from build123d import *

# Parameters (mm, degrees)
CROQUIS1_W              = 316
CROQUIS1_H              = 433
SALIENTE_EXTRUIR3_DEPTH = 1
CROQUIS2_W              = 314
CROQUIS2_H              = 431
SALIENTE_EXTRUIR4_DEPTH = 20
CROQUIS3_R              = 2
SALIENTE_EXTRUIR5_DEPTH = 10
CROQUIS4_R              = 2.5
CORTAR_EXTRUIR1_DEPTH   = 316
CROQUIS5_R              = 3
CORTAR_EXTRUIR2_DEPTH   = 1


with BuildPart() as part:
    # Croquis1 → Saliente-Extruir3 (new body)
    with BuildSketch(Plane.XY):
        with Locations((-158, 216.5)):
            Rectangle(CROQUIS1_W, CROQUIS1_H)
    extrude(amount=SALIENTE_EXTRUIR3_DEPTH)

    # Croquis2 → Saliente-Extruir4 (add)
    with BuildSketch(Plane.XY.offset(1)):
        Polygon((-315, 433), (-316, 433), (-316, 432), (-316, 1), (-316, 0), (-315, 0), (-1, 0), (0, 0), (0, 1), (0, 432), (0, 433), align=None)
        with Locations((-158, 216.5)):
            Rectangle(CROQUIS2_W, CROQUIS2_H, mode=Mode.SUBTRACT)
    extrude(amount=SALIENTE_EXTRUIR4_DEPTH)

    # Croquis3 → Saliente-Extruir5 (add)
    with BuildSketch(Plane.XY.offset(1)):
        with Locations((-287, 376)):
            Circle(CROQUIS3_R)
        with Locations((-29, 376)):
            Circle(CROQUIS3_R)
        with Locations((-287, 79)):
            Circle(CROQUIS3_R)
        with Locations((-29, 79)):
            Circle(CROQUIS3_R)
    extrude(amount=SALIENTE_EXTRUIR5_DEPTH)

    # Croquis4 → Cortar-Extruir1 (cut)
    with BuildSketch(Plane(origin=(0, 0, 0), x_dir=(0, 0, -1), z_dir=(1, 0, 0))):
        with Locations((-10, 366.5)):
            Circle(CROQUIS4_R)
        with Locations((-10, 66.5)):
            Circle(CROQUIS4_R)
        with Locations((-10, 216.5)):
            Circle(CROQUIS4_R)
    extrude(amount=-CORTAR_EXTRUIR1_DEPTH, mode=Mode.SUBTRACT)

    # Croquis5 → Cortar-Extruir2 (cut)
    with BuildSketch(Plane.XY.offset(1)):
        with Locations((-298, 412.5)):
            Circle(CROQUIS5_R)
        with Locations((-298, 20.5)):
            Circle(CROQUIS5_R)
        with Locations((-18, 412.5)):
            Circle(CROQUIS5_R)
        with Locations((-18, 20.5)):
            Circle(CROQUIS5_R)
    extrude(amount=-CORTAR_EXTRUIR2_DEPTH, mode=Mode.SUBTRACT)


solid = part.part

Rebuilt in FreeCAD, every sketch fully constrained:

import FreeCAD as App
import Part
import Sketcher

V = App.Vector
Q = App.Units.Quantity

doc = App.newDocument("Part")
body = doc.addObject("PartDesign::Body", "Body")

sketch1 = doc.addObject("Sketcher::SketchObject", "Sketch")
body.addObject(sketch1)
sketch1.AttachmentSupport = (doc.XY_Plane, [""])
sketch1.MapMode = "FlatFace"
sketch1.addGeometry([
    Part.LineSegment(V(-316, 433, 0), V(-316, 0, 0)),
    Part.LineSegment(V(-316, 0, 0), V(0, 0, 0)),
    Part.LineSegment(V(0, 0, 0), V(0, 433, 0)),
    Part.LineSegment(V(0, 433, 0), V(-316, 433, 0)),
], False)
sketch1.addConstraint([
    Sketcher.Constraint("Coincident", 0, 2, 1, 1),
    Sketcher.Constraint("Coincident", 1, 2, 2, 1),
    Sketcher.Constraint("Coincident", 2, 2, 3, 1),
    Sketcher.Constraint("Coincident", 3, 2, 0, 1),
    Sketcher.Constraint("Vertical", 0),
    Sketcher.Constraint("Horizontal", 1),
    Sketcher.Constraint("Vertical", 2),
    Sketcher.Constraint("Horizontal", 3),
    Sketcher.Constraint("Coincident", 1, 2, -1, 1),
    Sketcher.Constraint("DistanceX", 1, 1, 1, 2, Q("316 mm")),
    Sketcher.Constraint("DistanceY", 0, 2, 0, 1, Q("433 mm")),
])
pad1 = doc.addObject("PartDesign::Pad", "Pad")
body.addObject(pad1)
pad1.Profile = sketch1
pad1.Length = 1

sketch2 = doc.addObject("Sketcher::SketchObject", "Sketch001")
body.addObject(sketch2)
sketch2.AttachmentSupport = (doc.XY_Plane, [""])
sketch2.MapMode = "FlatFace"
sketch2.AttachmentOffset = App.Placement(V(0, 0, 1), App.Rotation())
sketch2.addGeometry([
    Part.LineSegment(V(-316, 433, 0), V(-316, 0, 0)),
    Part.LineSegment(V(-316, 0, 0), V(0, 0, 0)),
    Part.LineSegment(V(0, 0, 0), V(0, 433, 0)),
    Part.LineSegment(V(0, 433, 0), V(-316, 433, 0)),
    Part.LineSegment(V(-1, 1, 0), V(-315, 1, 0)),
    Part.LineSegment(V(-315, 1, 0), V(-315, 432, 0)),
    Part.LineSegment(V(-315, 432, 0), V(-1, 432, 0)),
    Part.LineSegment(V(-1, 432, 0), V(-1, 1, 0)),
], False)
sketch2.addConstraint([
    Sketcher.Constraint("Coincident", 0, 2, 1, 1),
    Sketcher.Constraint("Coincident", 1, 2, 2, 1),
    Sketcher.Constraint("Coincident", 2, 2, 3, 1),
    Sketcher.Constraint("Coincident", 3, 2, 0, 1),
    Sketcher.Constraint("Coincident", 4, 2, 5, 1),
    Sketcher.Constraint("Coincident", 5, 2, 6, 1),
    Sketcher.Constraint("Coincident", 6, 2, 7, 1),
    Sketcher.Constraint("Coincident", 7, 2, 4, 1),
    Sketcher.Constraint("Vertical", 0),
    Sketcher.Constraint("Horizontal", 1),
    Sketcher.Constraint("Vertical", 2),
    Sketcher.Constraint("Horizontal", 3),
    Sketcher.Constraint("Horizontal", 4),
    Sketcher.Constraint("Vertical", 5),
    Sketcher.Constraint("Horizontal", 6),
    Sketcher.Constraint("Vertical", 7),
    Sketcher.Constraint("Coincident", 1, 2, -1, 1),
    Sketcher.Constraint("DistanceX", 1, 1, 1, 2, Q("316 mm")),
    Sketcher.Constraint("DistanceX", 4, 2, 4, 1, Q("314 mm")),
    Sketcher.Constraint("DistanceY", 0, 2, 0, 1, Q("433 mm")),
    Sketcher.Constraint("DistanceY", 5, 1, 5, 2, Q("431 mm")),
    Sketcher.Constraint("DistanceX", 4, 2, -1, 1, Q("315 mm")),
    Sketcher.Constraint("DistanceY", -1, 1, 4, 2, Q("1 mm")),
])
pad2 = doc.addObject("PartDesign::Pad", "Pad001")
body.addObject(pad2)
pad2.Profile = sketch2
pad2.Length = 20

sketch3 = doc.addObject("Sketcher::SketchObject", "Sketch002")
body.addObject(sketch3)
sketch3.AttachmentSupport = (doc.XY_Plane, [""])
sketch3.MapMode = "FlatFace"
sketch3.AttachmentOffset = App.Placement(V(0, 0, 1), App.Rotation())
sketch3.addGeometry([
    Part.Circle(V(-287, 376, 0), V(0, 0, 1), 2),
    Part.Circle(V(-29, 376, 0), V(0, 0, 1), 2),
    Part.Circle(V(-287, 79, 0), V(0, 0, 1), 2),
    Part.Circle(V(-29, 79, 0), V(0, 0, 1), 2),
], False)
sketch3.addConstraint([
    Sketcher.Constraint("Equal", 0, 1),
    Sketcher.Constraint("Equal", 1, 2),
    Sketcher.Constraint("Equal", 2, 3),
    Sketcher.Constraint("Horizontal", 0, 3, 1, 3),
    Sketcher.Constraint("Horizontal", 2, 3, 3, 3),
    Sketcher.Constraint("Vertical", 0, 3, 2, 3),
    Sketcher.Constraint("Vertical", 1, 3, 3, 3),
    Sketcher.Constraint("Diameter", 0, Q("4 mm")),
    Sketcher.Constraint("DistanceX", 0, 3, -1, 1, Q("287 mm")),
    Sketcher.Constraint("DistanceY", -1, 1, 0, 3, Q("376 mm")),
    Sketcher.Constraint("DistanceX", 1, 3, -1, 1, Q("29 mm")),
    Sketcher.Constraint("DistanceY", -1, 1, 2, 3, Q("79 mm")),
])
pad3 = doc.addObject("PartDesign::Pad", "Pad002")
body.addObject(pad3)
pad3.Profile = sketch3
pad3.Length = 10

sketch4 = doc.addObject("Sketcher::SketchObject", "Sketch003")
body.addObject(sketch4)
sketch4.AttachmentSupport = (doc.YZ_Plane, [""])
sketch4.MapMode = "FlatFace"
sketch4.addGeometry([
    Part.Circle(V(366.5, 10, 0), V(0, 0, 1), 2.5),
    Part.Circle(V(66.5, 10, 0), V(0, 0, 1), 2.5),
    Part.Circle(V(216.5, 10, 0), V(0, 0, 1), 2.5),
], False)
sketch4.addConstraint([
    Sketcher.Constraint("Equal", 0, 1),
    Sketcher.Constraint("Equal", 1, 2),
    Sketcher.Constraint("Horizontal", 0, 3, 1, 3),
    Sketcher.Constraint("Horizontal", 1, 3, 2, 3),
    Sketcher.Constraint("Diameter", 0, Q("5 mm")),
    Sketcher.Constraint("DistanceY", -1, 1, 0, 3, Q("10 mm")),
    Sketcher.Constraint("DistanceX", 1, 3, 0, 3, Q("300 mm")),
    Sketcher.Constraint("DistanceX", 2, 3, 0, 3, Q("150 mm")),
    Sketcher.Constraint("DistanceX", -1, 1, 0, 3, Q("366.5 mm")),
])
pocket1 = doc.addObject("PartDesign::Pocket", "Pocket")
body.addObject(pocket1)
pocket1.Profile = sketch4
pocket1.Length = 316

sketch5 = doc.addObject("Sketcher::SketchObject", "Sketch004")
body.addObject(sketch5)
sketch5.AttachmentSupport = (doc.XY_Plane, [""])
sketch5.MapMode = "FlatFace"
sketch5.AttachmentOffset = App.Placement(V(0, 0, 1), App.Rotation())
sketch5.addGeometry([
    Part.Circle(V(-298, 412.5, 0), V(0, 0, 1), 3),
    Part.Circle(V(-298, 20.5, 0), V(0, 0, 1), 3),
    Part.Circle(V(-18, 412.5, 0), V(0, 0, 1), 3),
    Part.Circle(V(-18, 20.5, 0), V(0, 0, 1), 3),
], False)
sketch5.addConstraint([
    Sketcher.Constraint("Equal", 0, 1),
    Sketcher.Constraint("Equal", 1, 2),
    Sketcher.Constraint("Equal", 2, 3),
    Sketcher.Constraint("Horizontal", 0, 3, 2, 3),
    Sketcher.Constraint("Horizontal", 1, 3, 3, 3),
    Sketcher.Constraint("Vertical", 0, 3, 1, 3),
    Sketcher.Constraint("Vertical", 2, 3, 3, 3),
    Sketcher.Constraint("Diameter", 0, Q("6 mm")),
    Sketcher.Constraint("DistanceX", 0, 3, -1, 1, Q("298 mm")),
    Sketcher.Constraint("DistanceX", 2, 3, -1, 1, Q("18 mm")),
    Sketcher.Constraint("DistanceY", 1, 3, 0, 3, Q("392 mm")),
    Sketcher.Constraint("DistanceY", -1, 1, 0, 3, Q("412.5 mm")),
])
pocket2 = doc.addObject("PartDesign::Pocket", "Pocket001")
body.addObject(pocket2)
pocket2.Profile = sketch5
pocket2.Length = 1

doc.recompute()
